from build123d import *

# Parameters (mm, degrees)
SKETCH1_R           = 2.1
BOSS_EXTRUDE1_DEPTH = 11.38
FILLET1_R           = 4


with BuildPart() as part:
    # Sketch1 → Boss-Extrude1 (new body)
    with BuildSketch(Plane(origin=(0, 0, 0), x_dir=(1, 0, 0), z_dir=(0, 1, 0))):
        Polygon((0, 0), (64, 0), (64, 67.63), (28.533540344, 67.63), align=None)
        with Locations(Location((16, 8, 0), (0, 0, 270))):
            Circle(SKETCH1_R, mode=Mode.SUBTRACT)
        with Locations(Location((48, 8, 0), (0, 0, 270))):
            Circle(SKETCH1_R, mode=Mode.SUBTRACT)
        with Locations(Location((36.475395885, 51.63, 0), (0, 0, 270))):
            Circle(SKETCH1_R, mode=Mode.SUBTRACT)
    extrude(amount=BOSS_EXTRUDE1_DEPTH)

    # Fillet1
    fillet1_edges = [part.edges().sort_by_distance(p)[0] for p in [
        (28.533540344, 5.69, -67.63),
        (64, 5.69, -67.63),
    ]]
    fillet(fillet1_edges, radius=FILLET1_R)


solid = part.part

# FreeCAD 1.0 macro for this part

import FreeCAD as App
import Part
import Sketcher
from FreeCAD import Vector


def edges_at(feature, points):
    """Names of the edges that pass closest to the given points."""
    edges = feature.Shape.Edges
    near = lambda p: min(range(len(edges)), key=lambda i: edges[i].distToShape(Part.Vertex(*p))[0])
    return sorted({f"Edge{near(p) + 1}" for p in points})


def add_polygon(sketch, points):
    """Adds a closed chain of lines whose ends are joined by coincident constraints."""
    first, n = sketch.GeometryCount, len(points)
    for a, b in zip(points, points[1:] + points[:1]):
        sketch.addGeometry(Part.LineSegment(App.Vector(*a, 0), App.Vector(*b, 0)), False)
    for i in range(n):
        sketch.addConstraint(Sketcher.Constraint("Coincident", first + i, 2, first + (i + 1) % n, 1))

doc = App.newDocument("Part")
body = doc.addObject("PartDesign::Body", "Body")

# Sketch on XZ plane
sketch1 = body.newObject("Sketcher::SketchObject", "Sketch")
sketch1.AttachmentSupport = (doc.getObject("XZ_Plane"), [""])
sketch1.MapMode = "FlatFace"
add_polygon(sketch1, [(0, 0), (64, 0), (64, -67.63), (28.53354, -67.63)])  # lines 0-3
sketch1.addGeometry(Part.Circle(Vector(16, -8, 0), Vector(0, 0, 1), 2.1), False)  # 4
sketch1.addGeometry(Part.Circle(Vector(48, -8, 0), Vector(0, 0, 1), 2.1), False)  # 5
sketch1.addGeometry(Part.Circle(Vector(36.475396, -51.63, 0), Vector(0, 0, 1), 2.1), False)  # 6
sketch1.addConstraint(Sketcher.Constraint("Horizontal", 0))
sketch1.addConstraint(Sketcher.Constraint("Vertical", 1))
sketch1.addConstraint(Sketcher.Constraint("Horizontal", 2))
sketch1.addConstraint(Sketcher.Constraint("Coincident", 3, 2, -1, 1))
sketch1.addConstraint(Sketcher.Constraint("Equal", 4, 5))
sketch1.addConstraint(Sketcher.Constraint("Equal", 5, 6))
sketch1.addConstraint(Sketcher.Constraint("Horizontal", 4, 3, 5, 3))
sketch1.addConstraint(Sketcher.Constraint("Diameter", 4, 4.2))
sketch1.addConstraint(Sketcher.Constraint("DistanceX", 0, 1, 0, 2, 64.0))
sketch1.addConstraint(Sketcher.Constraint("DistanceX", -1, 1, 4, 3, 16.0))
sketch1.addConstraint(Sketcher.Constraint("DistanceY", 4, 3, -1, 1, 8.0))
sketch1.addConstraint(Sketcher.Constraint("DistanceX", -1, 1, 5, 3, 48.0))
sketch1.addConstraint(Sketcher.Constraint("DistanceY", 1, 2, 6, 3, 16.0))
sketch1.addConstraint(Sketcher.Constraint("DistanceY", 1, 2, 1, 1, 67.63))
sketch1.addConstraint(Sketcher.Constraint("DistanceX", 2, 2, 2, 1, 35.46646))
sketch1.addConstraint(Sketcher.Constraint("DistanceX", -1, 1, 6, 3, 36.475396))
pad1 = body.newObject("PartDesign::Pad", "Pad")
pad1.Profile = sketch1
pad1.Length = 11.38
pad1.Reversed = True
doc.recompute()

fillet = body.newObject("PartDesign::Fillet", "Fillet")
fillet.Base = (pad1, edges_at(pad1, [(28.534, 5.69, -67.63), (64, 5.69, -67.63)]))
fillet.Radius = 4

doc.recompute()
